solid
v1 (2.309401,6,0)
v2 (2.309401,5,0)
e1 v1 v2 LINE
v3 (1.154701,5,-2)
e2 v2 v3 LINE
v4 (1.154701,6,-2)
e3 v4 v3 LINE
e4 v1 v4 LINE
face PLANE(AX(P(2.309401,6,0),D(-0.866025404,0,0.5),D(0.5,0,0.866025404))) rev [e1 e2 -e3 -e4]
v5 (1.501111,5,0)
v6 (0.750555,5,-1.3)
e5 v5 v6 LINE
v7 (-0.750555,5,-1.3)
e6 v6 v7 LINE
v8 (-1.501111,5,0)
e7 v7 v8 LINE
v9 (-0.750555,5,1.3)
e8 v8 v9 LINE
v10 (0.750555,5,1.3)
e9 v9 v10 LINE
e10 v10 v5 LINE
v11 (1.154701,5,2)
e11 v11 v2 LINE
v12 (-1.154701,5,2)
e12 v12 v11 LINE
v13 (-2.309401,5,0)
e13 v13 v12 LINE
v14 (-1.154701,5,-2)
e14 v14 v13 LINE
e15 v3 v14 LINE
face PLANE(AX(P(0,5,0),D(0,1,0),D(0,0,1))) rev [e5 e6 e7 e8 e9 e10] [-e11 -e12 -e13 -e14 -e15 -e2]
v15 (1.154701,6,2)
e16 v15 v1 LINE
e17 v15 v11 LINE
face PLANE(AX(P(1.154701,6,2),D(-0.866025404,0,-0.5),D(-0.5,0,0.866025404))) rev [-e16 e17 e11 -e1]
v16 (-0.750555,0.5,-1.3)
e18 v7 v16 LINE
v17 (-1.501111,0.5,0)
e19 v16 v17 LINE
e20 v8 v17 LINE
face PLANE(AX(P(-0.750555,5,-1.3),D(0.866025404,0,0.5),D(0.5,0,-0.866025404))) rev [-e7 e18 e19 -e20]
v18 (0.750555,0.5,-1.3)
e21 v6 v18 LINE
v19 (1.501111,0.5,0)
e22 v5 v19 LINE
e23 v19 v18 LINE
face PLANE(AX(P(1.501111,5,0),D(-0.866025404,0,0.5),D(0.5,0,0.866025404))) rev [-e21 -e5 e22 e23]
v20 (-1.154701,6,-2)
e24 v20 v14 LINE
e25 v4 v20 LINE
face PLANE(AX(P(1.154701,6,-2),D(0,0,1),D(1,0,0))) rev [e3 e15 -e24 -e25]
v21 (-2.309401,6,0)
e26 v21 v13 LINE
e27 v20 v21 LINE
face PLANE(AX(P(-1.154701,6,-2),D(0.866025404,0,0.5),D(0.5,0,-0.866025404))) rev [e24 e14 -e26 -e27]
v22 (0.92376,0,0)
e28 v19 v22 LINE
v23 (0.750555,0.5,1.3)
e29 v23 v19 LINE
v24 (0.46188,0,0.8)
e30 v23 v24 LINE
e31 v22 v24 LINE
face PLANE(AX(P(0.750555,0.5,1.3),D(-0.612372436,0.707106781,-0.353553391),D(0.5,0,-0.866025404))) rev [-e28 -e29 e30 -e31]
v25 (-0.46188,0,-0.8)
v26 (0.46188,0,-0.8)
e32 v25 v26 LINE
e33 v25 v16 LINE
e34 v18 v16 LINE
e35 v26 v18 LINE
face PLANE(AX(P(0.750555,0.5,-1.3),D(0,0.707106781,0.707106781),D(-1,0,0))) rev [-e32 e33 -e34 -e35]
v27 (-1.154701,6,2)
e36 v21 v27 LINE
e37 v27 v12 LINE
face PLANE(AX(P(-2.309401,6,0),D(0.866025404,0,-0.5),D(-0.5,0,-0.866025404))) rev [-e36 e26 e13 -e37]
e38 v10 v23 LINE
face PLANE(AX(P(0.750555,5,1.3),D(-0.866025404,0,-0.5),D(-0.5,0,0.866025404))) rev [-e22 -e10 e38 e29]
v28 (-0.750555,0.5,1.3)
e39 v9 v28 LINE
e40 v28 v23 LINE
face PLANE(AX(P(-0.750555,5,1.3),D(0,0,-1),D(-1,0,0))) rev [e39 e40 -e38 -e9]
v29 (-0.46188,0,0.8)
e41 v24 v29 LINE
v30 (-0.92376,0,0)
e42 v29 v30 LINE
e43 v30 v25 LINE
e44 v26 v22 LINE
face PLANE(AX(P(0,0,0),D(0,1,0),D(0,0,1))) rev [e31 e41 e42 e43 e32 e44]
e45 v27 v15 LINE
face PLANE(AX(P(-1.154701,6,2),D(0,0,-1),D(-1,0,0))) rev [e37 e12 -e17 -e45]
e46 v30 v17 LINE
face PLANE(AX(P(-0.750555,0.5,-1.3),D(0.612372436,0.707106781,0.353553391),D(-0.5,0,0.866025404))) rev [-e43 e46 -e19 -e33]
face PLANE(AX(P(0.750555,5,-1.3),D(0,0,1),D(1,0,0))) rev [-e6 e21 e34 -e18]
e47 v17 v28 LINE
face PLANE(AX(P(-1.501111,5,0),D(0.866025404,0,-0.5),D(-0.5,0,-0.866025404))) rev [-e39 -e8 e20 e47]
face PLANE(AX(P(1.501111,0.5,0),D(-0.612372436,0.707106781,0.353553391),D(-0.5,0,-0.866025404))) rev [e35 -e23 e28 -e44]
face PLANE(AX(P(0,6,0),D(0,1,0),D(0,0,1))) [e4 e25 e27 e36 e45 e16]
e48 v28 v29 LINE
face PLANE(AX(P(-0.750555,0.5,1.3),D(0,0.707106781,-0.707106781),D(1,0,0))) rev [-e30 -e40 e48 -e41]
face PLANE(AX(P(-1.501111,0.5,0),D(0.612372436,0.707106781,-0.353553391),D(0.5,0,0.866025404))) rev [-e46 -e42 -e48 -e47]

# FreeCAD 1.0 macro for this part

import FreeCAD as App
import Part
import Sketcher
Q = App.Units.Quantity


def edges_at(feature, points):
    """Names of the edges that pass closest to the given points."""
    edges = feature.Shape.Edges
    near = lambda p: min(range(len(edges)), key=lambda i: edges[i].distToShape(Part.Vertex(*p))[0])
    return sorted({f"Edge{near(p) + 1}" for p in points})

doc = App.newDocument("Part")
body = doc.addObject("PartDesign::Body", "Body")

# Sketch on XZ plane
sketch1 = body.newObject("Sketcher::SketchObject", "Sketch")
sketch1.AttachmentSupport = (doc.getObject("XZ_Plane"), [""])
sketch1.MapMode = "FlatFace"
sketch1.addGeometry(Part.LineSegment(App.Vector(1.5, 0, 0), App.Vector(0.8, -1.3, 0)), False)
sketch1.addGeometry(Part.LineSegment(App.Vector(0.8, -1.3, 0), App.Vector(-0.8, -1.3, 0)), False)
sketch1.addGeometry(Part.LineSegment(App.Vector(-0.8, -1.3, 0), App.Vector(-1.5, 0, 0)), False)
sketch1.addGeometry(Part.LineSegment(App.Vector(-1.5, 0, 0), App.Vector(-0.8, 1.3, 0)), False)
sketch1.addGeometry(Part.LineSegment(App.Vector(-0.8, 1.3, 0), App.Vector(0.8, 1.3, 0)), False)
sketch1.addGeometry(Part.LineSegment(App.Vector(0.8, 1.3, 0), App.Vector(1.5, 0, 0)), False)
sketch1.addConstraint(Sketcher.Constraint("Coincident", 0, 2, 1, 1))
sketch1.addConstraint(Sketcher.Constraint("Coincident", 1, 2, 2, 1))
sketch1.addConstraint(Sketcher.Constraint("Coincident", 2, 2, 3, 1))
sketch1.addConstraint(Sketcher.Constraint("Coincident", 3, 2, 4, 1))
sketch1.addConstraint(Sketcher.Constraint("Coincident", 4, 2, 5, 1))
sketch1.addConstraint(Sketcher.Constraint("Coincident", 5, 2, 0, 1))
sketch1.addConstraint(Sketcher.Constraint("Horizontal", 1))
sketch1.addConstraint(Sketcher.Constraint("Horizontal", 4))
sketch1.addConstraint(Sketcher.Constraint("Symmetric", 0, 2, 3, 2, -1, 1))
sketch1.addConstraint(Sketcher.Constraint("Symmetric", 2, 2, 5, 2, -1, 1))
sketch1.addConstraint(Sketcher.Constraint("PointOnObject", 2, 2, -1))
sketch1.addConstraint(Sketcher.Constraint("Parallel", 2, 5))
sketch1.addConstraint(Sketcher.Constraint("Vertical", 1, 2, 3, 2))
sketch1.addConstraint(Sketcher.Constraint("Angle", 0, Q("-120 deg")))
sketch1.addConstraint(Sketcher.Constraint("DistanceY", 0, 2, -1, 1, 1.3))
sketch1.addConstraint(Sketcher.Constraint("DistanceX", 1, 2, 1, 1, 1.501111))
pad1 = body.newObject("PartDesign::Pad", "Pad")
pad1.Profile = sketch1
pad1.Length = 5
pad1.Reversed = True

# Sketch on XZ plane
sketch2 = body.newObject("Sketcher::SketchObject", "Sketch001")
sketch2.AttachmentSupport = (doc.getObject("XZ_Plane"), [""])
sketch2.MapMode = "FlatFace"
sketch2.AttachmentOffset = App.Placement(App.Vector(0, 0, -5), App.Rotation())
sketch2.addGeometry(Part.LineSegment(App.Vector(2.3, 0, 0), App.Vector(1.2, -2, 0)), False)
sketch2.addGeometry(Part.LineSegment(App.Vector(1.2, -2, 0), App.Vector(-1.2, -2, 0)), False)
sketch2.addGeometry(Part.LineSegment(App.Vector(-1.2, -2, 0), App.Vector(-2.3, 0, 0)), False)
sketch2.addGeometry(Part.LineSegment(App.Vector(-2.3, 0, 0), App.Vector(-1.2, 2, 0)), False)
sketch2.addGeometry(Part.LineSegment(App.Vector(-1.2, 2, 0), App.Vector(1.2, 2, 0)), False)
sketch2.addGeometry(Part.LineSegment(App.Vector(1.2, 2, 0), App.Vector(2.3, 0, 0)), False)
sketch2.addConstraint(Sketcher.Constraint("Coincident", 0, 2, 1, 1))
sketch2.addConstraint(Sketcher.Constraint("Coincident", 1, 2, 2, 1))
sketch2.addConstraint(Sketcher.Constraint("Coincident", 2, 2, 3, 1))
sketch2.addConstraint(Sketcher.Constraint("Coincident", 3, 2, 4, 1))
sketch2.addConstraint(Sketcher.Constraint("Coincident", 4, 2, 5, 1))
sketch2.addConstraint(Sketcher.Constraint("Coincident", 5, 2, 0, 1))
sketch2.addConstraint(Sketcher.Constraint("Horizontal", 1))
sketch2.addConstraint(Sketcher.Constraint("Horizontal", 4))
sketch2.addConstraint(Sketcher.Constraint("Symmetric", 0, 2, 3, 2, -1, 1))
sketch2.addConstraint(Sketcher.Constraint("Symmetric", 2, 2, 5, 2, -1, 1))
sketch2.addConstraint(Sketcher.Constraint("PointOnObject", 2, 2, -1))
sketch2.addConstraint(Sketcher.Constraint("Parallel", 2, 5))
sketch2.addConstraint(Sketcher.Constraint("Vertical", 1, 2, 3, 2))
sketch2.addConstraint(Sketcher.Constraint("Angle", 0, Q("-120 deg")))
sketch2.addConstraint(Sketcher.Constraint("DistanceY", 0, 2, -1, 1, 2.0))
sketch2.addConstraint(Sketcher.Constraint("DistanceX", 1, 2, 1, 1, 2.309401))
pad2 = body.newObject("PartDesign::Pad", "Pad001")
pad2.Profile = sketch2
pad2.Length = 1
pad2.Reversed = True
doc.recompute()

chamfer = body.newObject("PartDesign::Chamfer", "Chamfer")
chamfer.Base = (pad2, edges_at(pad2, [
    (0, 0, 1.3),
    (-1.126, 0, 0.65),
    (-1.126, 0, -0.65),
    (0, 0, -1.3),
    (1.126, 0, -0.65),
    (1.126, 0, 0.65),
]))
chamfer.Size = 0.5

doc.recompute()
